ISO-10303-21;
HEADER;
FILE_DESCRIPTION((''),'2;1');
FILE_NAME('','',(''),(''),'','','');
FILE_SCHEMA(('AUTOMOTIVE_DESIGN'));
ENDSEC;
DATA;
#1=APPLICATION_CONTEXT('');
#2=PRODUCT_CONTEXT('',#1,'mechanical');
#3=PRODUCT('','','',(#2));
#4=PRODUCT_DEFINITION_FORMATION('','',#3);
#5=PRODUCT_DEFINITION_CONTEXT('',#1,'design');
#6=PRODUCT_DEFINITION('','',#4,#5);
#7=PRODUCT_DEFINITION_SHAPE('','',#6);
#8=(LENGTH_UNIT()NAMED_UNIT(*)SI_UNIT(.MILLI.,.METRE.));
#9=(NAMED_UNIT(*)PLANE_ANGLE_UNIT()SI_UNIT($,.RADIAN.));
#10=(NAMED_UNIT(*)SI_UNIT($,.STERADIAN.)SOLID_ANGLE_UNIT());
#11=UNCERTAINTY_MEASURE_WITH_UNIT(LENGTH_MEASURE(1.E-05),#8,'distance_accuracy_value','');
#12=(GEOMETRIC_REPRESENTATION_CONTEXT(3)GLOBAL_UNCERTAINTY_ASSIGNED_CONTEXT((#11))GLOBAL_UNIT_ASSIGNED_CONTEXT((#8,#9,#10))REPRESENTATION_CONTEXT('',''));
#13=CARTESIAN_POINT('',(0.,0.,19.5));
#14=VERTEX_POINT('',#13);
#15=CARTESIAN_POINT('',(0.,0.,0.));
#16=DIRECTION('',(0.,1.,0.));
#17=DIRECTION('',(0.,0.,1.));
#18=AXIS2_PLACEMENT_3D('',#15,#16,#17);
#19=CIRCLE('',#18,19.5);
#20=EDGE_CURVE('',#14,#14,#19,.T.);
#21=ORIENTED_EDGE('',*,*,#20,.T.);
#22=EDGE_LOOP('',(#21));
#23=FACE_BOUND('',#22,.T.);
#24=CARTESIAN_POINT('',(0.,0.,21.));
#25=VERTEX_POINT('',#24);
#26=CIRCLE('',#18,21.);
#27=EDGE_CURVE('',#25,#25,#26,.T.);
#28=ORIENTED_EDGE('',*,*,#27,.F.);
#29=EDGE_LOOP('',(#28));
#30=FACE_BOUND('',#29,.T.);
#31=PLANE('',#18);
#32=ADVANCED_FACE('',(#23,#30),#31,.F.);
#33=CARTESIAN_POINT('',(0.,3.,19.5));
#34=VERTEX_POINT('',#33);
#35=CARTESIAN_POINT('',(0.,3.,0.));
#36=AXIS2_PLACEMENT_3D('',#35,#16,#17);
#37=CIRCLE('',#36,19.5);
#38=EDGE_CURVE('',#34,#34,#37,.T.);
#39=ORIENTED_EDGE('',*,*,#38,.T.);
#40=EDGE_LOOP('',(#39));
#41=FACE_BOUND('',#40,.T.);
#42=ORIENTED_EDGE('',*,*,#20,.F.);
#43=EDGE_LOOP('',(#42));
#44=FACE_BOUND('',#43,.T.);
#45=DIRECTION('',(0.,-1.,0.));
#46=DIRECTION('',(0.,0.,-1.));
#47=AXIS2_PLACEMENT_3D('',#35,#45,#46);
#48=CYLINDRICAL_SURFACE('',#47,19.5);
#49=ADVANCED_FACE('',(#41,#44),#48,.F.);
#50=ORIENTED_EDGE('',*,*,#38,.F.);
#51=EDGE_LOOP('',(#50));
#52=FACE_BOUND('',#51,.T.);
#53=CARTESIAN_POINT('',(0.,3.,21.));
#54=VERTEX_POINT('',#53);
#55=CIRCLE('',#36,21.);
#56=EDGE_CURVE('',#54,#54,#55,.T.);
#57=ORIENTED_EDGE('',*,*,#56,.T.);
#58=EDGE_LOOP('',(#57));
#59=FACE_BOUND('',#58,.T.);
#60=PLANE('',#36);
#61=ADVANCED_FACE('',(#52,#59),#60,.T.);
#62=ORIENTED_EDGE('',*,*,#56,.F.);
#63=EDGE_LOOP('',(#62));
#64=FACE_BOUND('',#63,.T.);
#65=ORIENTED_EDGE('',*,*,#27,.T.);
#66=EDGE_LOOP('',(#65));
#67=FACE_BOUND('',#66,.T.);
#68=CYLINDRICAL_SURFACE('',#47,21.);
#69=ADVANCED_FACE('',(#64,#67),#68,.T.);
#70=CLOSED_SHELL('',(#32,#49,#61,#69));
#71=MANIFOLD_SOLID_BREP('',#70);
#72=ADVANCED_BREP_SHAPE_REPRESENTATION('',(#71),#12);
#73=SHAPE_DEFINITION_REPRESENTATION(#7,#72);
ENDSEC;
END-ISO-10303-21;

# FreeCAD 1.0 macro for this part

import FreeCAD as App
import Part
import Sketcher

V = App.Vector

doc = App.newDocument("Part")
body = doc.addObject("PartDesign::Body", "Body")

# Sketch on XZ plane
sketch1 = body.newObject("Sketcher::SketchObject", "Sketch")
sketch1.AttachmentSupport = (doc.getObject("XZ_Plane"), [""])
sketch1.MapMode = "FlatFace"
sketch1.addGeometry(Part.Circle(V(0, 0, 0), V(0, 0, 1), 21), False)
sketch1.addGeometry(Part.Circle(V(0, 0, 0), V(0, 0, 1), 19.5), False)
sketch1.addConstraint(Sketcher.Constraint("Coincident", 0, 3, -1, 1))
sketch1.addConstraint(Sketcher.Constraint("Coincident", 1, 3, -1, 1))
sketch1.addConstraint(Sketcher.Constraint("Diameter", 0, 42.0))
sketch1.addConstraint(Sketcher.Constraint("Diameter", 1, 39.0))
pad1 = body.newObject("PartDesign::Pad", "Pad")
pad1.Profile = sketch1
pad1.Length = 3
pad1.Reversed = True

doc.recompute()
